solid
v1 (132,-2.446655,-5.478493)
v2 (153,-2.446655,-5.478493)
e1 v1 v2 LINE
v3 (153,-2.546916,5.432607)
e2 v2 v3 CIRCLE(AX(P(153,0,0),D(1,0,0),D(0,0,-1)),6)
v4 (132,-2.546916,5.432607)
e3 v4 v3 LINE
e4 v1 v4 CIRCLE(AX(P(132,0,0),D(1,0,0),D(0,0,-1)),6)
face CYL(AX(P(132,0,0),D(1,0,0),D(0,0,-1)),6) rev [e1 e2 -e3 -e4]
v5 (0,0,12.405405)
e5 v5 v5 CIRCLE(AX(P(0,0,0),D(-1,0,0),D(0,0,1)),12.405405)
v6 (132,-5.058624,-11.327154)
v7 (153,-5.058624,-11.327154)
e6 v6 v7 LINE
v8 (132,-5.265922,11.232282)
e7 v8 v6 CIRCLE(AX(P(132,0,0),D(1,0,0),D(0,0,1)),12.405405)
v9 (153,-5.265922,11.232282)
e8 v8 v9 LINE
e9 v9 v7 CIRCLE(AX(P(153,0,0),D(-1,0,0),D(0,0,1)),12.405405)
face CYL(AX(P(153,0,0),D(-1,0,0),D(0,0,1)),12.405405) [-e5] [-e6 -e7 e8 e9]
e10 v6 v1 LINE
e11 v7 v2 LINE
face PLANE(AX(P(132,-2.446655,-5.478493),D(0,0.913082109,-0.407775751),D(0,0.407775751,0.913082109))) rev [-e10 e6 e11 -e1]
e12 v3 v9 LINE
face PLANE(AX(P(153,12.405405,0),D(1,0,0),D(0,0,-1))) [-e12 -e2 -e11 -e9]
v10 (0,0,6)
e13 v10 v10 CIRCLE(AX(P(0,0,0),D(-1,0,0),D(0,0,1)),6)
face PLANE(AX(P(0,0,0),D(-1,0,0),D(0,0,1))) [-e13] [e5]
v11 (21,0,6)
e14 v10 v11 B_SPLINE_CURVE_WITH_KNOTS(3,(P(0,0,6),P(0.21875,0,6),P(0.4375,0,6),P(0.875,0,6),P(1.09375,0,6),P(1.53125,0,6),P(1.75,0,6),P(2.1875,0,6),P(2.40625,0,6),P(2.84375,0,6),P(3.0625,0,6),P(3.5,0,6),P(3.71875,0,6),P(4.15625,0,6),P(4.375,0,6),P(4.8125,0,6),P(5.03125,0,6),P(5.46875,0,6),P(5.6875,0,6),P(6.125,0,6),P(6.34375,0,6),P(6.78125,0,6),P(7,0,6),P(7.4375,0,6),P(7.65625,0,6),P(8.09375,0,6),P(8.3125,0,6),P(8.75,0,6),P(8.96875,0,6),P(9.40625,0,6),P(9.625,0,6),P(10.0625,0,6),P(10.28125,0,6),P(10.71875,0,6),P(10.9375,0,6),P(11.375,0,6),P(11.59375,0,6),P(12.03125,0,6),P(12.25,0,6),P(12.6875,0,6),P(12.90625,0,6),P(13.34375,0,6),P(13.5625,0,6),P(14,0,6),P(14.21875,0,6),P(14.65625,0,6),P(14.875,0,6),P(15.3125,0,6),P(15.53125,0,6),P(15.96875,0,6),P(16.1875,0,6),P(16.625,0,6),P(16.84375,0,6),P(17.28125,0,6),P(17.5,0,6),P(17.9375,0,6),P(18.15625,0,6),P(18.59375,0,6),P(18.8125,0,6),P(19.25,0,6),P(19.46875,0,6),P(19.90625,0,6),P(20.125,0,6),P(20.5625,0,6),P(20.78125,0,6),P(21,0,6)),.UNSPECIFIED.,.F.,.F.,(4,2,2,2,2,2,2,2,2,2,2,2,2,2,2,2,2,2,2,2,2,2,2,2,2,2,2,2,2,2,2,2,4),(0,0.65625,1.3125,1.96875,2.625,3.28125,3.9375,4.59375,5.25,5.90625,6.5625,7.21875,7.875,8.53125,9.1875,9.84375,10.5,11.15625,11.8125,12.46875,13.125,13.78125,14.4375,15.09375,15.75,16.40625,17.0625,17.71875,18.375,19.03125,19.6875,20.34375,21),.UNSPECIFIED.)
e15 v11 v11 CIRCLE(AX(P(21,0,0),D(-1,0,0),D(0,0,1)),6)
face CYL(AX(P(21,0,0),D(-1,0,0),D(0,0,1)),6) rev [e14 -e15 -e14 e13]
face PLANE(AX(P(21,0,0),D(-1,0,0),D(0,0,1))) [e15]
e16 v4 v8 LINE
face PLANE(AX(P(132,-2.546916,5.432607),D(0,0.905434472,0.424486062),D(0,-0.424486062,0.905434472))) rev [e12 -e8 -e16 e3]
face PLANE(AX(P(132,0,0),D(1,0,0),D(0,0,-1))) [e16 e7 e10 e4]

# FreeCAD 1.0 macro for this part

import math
import FreeCAD as App
import Part
import Sketcher


def add_polygon(sketch, points):
    """Adds a closed chain of lines whose ends are joined by coincident constraints."""
    first, n = sketch.GeometryCount, len(points)
    for a, b in zip(points, points[1:] + points[:1]):
        sketch.addGeometry(Part.LineSegment(App.Vector(*a, 0), App.Vector(*b, 0)), False)
    for i in range(n):
        sketch.addConstraint(Sketcher.Constraint("Coincident", first + i, 2, first + (i + 1) % n, 1))

doc = App.newDocument("Part")
body = doc.addObject("PartDesign::Body", "Body")

sketch1 = body.newObject("Sketcher::SketchObject", "Sketch")
sketch1.AttachmentSupport = (doc.getObject("XY_Plane"), [""])
sketch1.MapMode = "FlatFace"
add_polygon(sketch1, [(153, 12), (153, 0), (0, 0), (0, 12)])
sketch1.addConstraint(Sketcher.Constraint("Vertical", 0))
sketch1.addConstraint(Sketcher.Constraint("Horizontal", 1))
sketch1.addConstraint(Sketcher.Constraint("Vertical", 2))
sketch1.addConstraint(Sketcher.Constraint("Horizontal", 3))
sketch1.addConstraint(Sketcher.Constraint("Coincident", 1, 2, -1, 1))
sketch1.addConstraint(Sketcher.Constraint("DistanceX", 1, 2, 1, 1, 153.0))
sketch1.addConstraint(Sketcher.Constraint("DistanceY", 0, 2, 0, 1, 12.405405))
revolution = body.newObject("PartDesign::Revolution", "Revolution")
revolution.Profile = sketch1
revolution.ReferenceAxis = (sketch1, ["H_Axis"])
revolution.Angle = 360

sketch2 = body.newObject("Sketcher::SketchObject", "Sketch001")
sketch2.AttachmentSupport = (doc.getObject("YZ_Plane"), [""])
sketch2.MapMode = "FlatFace"
sketch2.AttachmentOffset = App.Placement(App.Vector(0, 0, 153), App.Rotation())
sketch2.addGeometry(Part.LineSegment(App.Vector(-5, -11, 0), App.Vector(-2, -5, 0)), False)
sketch2.addGeometry(Part.ArcOfCircle(Part.Circle(App.Vector(0, 0, 0), App.Vector(0, 0, 1), 6), math.radians(-114), math.radians(115)), False)
sketch2.addGeometry(Part.LineSegment(App.Vector(-3, 5, 0), App.Vector(-5, 11, 0)), False)
sketch2.addGeometry(Part.ArcOfCircle(Part.Circle(App.Vector(0, 0, 0), App.Vector(0, 0, 1), 12), math.radians(115), math.radians(246)), False)
sketch2.addConstraint(Sketcher.Constraint("Coincident", 0, 2, 1, 1))
sketch2.addConstraint(Sketcher.Constraint("Coincident", 1, 2, 2, 1))
sketch2.addConstraint(Sketcher.Constraint("Coincident", 2, 2, 3, 1))
sketch2.addConstraint(Sketcher.Constraint("Coincident", 3, 2, 0, 1))
sketch2.addConstraint(Sketcher.Constraint("Coincident", 1, 3, -1, 1))
sketch2.addConstraint(Sketcher.Constraint("Coincident", 3, 3, -1, 1))
sketch2.addConstraint(Sketcher.Constraint("Radius", 1, 6.0))
sketch2.addConstraint(Sketcher.Constraint("Radius", 3, 12.405405))
sketch2.addConstraint(Sketcher.Constraint("DistanceY", 0, 2, 1, 2, 10.911099))
sketch2.addConstraint(Sketcher.Constraint("DistanceX", 2, 2, 3, 2, 0.207298))
sketch2.addConstraint(Sketcher.Constraint("DistanceX", 2, 2, -1, 1, 5.265922))
sketch2.addConstraint(Sketcher.Constraint("DistanceX", 1, 2, 0, 2, 0.100262))
pocket1 = body.newObject("PartDesign::Pocket", "Pocket")
pocket1.Profile = sketch2
pocket1.Length = 21

sketch3 = body.newObject("Sketcher::SketchObject", "Sketch002")
sketch3.AttachmentSupport = (doc.getObject("YZ_Plane"), [""])
sketch3.MapMode = "FlatFace"
sketch3.AttachmentOffset = App.Placement(App.Vector(0, 0, 21), App.Rotation())
sketch3.addGeometry(Part.ArcOfCircle(Part.Circle(App.Vector(0, 0, 0), App.Vector(0, 0, 1), 6), math.radians(-158), math.radians(158)), False)
sketch3.addGeometry(Part.ArcOfCircle(Part.Circle(App.Vector(0, 0, 0), App.Vector(0, 0, 1), 6), math.radians(158), math.radians(202)), False)
sketch3.addConstraint(Sketcher.Constraint("Tangent", 0, 1, 1, 2))
sketch3.addConstraint(Sketcher.Constraint("Coincident", 1, 1, 0, 2))
sketch3.addConstraint(Sketcher.Constraint("Coincident", 0, 3, -1, 1))
sketch3.addConstraint(Sketcher.Constraint("Vertical", 0, 1, 1, 1))
sketch3.addConstraint(Sketcher.Constraint("Radius", 0, 6.0))
sketch3.addConstraint(Sketcher.Constraint("DistanceY", 0, 1, 1, 1, 4.5))
pocket2 = body.newObject("PartDesign::Pocket", "Pocket001")
pocket2.Profile = sketch3
pocket2.Length = 21

doc.recompute()
